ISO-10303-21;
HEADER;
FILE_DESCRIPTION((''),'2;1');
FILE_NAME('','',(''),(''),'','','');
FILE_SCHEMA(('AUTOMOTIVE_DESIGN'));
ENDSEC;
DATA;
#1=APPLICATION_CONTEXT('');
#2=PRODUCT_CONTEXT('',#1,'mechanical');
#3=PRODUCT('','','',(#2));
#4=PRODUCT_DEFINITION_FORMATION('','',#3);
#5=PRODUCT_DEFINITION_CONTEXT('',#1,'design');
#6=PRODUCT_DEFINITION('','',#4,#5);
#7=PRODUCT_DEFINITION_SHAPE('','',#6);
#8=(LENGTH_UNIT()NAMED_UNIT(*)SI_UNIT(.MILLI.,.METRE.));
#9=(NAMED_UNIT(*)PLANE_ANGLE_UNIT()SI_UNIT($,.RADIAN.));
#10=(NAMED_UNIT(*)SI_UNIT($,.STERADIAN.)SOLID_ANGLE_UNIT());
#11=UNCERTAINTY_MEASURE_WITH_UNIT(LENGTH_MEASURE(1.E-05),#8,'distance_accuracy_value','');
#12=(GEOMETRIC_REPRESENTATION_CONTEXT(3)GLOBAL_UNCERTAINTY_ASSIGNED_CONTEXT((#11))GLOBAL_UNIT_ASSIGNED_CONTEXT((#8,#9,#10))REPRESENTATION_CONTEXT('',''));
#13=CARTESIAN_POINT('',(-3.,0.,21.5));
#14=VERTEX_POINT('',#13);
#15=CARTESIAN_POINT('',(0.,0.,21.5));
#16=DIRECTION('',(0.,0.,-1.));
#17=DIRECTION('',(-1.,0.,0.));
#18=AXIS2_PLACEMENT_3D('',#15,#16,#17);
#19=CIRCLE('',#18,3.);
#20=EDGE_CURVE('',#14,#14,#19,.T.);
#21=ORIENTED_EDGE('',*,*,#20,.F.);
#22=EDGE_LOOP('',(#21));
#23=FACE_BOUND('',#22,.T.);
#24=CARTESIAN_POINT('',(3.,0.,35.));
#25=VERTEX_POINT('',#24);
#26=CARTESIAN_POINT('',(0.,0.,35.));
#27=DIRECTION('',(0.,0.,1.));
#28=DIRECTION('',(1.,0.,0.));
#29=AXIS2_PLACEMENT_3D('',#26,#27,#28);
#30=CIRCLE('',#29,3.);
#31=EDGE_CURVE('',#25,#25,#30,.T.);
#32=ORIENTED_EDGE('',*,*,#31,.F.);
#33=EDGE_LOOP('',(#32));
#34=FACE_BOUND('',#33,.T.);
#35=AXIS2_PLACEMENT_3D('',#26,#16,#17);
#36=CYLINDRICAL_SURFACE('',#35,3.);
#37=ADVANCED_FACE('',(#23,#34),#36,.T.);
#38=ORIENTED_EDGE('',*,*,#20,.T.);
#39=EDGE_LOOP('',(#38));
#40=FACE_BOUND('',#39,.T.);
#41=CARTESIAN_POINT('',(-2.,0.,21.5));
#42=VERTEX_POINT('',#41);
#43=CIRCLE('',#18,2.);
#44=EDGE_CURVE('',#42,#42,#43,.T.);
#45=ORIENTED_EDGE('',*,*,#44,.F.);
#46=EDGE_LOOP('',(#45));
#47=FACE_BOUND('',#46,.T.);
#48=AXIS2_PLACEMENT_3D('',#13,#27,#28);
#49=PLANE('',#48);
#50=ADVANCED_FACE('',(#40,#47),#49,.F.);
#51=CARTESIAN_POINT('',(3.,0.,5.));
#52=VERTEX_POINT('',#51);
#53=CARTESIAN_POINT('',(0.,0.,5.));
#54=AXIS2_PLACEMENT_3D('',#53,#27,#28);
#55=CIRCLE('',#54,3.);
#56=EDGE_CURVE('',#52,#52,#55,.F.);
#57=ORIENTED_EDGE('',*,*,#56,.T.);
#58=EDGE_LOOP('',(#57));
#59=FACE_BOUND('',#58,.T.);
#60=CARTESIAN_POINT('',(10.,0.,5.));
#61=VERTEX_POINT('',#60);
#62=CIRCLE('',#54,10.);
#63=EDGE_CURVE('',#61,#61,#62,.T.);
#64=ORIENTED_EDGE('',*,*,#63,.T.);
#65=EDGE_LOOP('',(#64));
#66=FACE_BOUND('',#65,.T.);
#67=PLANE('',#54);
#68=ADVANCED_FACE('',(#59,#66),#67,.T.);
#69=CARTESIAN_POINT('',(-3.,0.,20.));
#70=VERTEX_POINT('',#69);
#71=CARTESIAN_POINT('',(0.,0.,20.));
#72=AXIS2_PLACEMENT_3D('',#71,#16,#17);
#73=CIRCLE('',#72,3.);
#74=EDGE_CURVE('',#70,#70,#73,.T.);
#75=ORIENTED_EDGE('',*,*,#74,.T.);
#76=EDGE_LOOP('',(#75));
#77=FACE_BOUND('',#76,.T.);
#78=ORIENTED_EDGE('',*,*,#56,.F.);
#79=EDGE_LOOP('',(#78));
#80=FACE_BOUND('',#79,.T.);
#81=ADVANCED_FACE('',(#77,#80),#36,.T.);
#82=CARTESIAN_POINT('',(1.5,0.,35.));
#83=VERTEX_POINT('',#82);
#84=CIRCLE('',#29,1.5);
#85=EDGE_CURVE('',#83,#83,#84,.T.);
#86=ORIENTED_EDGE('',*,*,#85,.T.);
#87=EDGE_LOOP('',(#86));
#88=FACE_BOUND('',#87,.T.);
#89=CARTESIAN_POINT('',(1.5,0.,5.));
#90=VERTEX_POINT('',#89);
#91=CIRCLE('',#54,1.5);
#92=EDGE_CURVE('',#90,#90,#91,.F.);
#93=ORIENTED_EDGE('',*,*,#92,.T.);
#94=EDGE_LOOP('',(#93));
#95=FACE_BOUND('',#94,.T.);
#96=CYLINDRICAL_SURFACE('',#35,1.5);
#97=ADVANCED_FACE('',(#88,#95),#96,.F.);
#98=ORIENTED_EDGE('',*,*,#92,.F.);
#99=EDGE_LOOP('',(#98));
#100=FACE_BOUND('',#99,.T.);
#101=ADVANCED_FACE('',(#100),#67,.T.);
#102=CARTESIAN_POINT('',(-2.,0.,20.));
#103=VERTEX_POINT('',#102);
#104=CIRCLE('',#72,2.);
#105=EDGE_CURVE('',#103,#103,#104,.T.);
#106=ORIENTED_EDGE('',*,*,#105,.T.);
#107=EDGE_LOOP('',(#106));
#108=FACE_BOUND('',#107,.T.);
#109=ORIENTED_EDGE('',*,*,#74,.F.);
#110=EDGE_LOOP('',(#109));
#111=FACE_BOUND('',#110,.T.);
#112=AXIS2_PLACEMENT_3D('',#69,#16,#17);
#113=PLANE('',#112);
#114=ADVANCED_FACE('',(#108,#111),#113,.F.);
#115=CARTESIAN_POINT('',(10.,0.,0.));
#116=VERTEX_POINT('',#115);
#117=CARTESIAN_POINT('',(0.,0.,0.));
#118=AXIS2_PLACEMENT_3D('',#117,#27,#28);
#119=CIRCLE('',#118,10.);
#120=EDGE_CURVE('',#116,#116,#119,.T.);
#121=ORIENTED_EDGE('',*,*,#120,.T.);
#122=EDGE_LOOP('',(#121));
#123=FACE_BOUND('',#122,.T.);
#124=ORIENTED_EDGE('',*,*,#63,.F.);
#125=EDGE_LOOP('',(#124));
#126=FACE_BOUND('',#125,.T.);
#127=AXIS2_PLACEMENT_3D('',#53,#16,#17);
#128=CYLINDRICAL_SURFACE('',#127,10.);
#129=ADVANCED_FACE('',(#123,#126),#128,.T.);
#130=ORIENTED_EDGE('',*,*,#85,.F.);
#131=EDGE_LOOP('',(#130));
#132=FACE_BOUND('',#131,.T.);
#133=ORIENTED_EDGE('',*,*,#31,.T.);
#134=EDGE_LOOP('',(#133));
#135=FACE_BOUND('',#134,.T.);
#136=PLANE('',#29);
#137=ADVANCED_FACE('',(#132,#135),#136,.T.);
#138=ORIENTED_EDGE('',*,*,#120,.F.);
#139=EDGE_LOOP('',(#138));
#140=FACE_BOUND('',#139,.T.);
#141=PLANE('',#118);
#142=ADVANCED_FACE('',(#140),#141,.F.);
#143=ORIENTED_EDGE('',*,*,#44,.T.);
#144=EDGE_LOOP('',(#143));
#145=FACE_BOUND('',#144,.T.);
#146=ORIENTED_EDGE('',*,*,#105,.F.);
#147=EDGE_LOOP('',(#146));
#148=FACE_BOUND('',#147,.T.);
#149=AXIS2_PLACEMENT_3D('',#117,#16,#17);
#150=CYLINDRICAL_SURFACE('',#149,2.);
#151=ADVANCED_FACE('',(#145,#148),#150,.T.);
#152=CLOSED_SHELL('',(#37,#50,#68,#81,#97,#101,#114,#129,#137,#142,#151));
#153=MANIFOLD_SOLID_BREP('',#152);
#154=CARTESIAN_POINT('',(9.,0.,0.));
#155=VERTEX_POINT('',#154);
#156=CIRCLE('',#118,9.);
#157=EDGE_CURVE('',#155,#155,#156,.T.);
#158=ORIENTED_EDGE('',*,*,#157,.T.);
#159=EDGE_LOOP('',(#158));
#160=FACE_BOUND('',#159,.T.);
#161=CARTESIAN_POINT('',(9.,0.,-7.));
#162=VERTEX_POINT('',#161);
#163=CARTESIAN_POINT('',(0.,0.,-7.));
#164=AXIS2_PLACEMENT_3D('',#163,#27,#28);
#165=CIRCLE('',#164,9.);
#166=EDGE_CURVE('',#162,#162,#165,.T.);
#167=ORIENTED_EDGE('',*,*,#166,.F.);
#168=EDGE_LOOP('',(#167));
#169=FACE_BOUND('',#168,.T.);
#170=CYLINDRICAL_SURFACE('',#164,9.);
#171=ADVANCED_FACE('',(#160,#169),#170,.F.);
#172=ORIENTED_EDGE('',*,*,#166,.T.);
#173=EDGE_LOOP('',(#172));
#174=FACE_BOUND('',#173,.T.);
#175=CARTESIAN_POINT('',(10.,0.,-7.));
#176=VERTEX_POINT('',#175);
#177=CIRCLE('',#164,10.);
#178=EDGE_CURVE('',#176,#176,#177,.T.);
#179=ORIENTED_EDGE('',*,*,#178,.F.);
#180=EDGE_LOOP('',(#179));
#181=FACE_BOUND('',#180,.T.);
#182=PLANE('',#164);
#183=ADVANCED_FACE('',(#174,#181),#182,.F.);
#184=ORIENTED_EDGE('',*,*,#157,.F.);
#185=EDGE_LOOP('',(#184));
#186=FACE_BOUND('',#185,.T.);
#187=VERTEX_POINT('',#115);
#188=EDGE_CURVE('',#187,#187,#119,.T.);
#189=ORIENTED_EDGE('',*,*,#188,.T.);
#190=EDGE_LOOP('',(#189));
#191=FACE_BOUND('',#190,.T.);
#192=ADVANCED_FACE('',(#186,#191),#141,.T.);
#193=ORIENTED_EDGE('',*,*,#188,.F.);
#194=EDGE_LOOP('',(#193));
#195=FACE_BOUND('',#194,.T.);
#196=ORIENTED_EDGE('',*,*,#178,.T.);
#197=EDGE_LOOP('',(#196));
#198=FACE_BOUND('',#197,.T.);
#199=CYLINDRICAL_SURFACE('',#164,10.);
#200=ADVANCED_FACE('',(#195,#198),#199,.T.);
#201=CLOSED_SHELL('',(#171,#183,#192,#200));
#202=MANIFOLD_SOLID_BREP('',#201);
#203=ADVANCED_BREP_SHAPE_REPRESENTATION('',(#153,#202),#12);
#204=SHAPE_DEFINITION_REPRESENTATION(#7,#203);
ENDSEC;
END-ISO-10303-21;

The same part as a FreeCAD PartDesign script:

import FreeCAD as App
import Part
import Sketcher

V = App.Vector
Q = App.Units.Quantity


def add_polygon(sketch, points):
    """Adds a closed chain of lines whose ends are joined by coincident constraints."""
    first, n = sketch.GeometryCount, len(points)
    for a, b in zip(points, points[1:] + points[:1]):
        sketch.addGeometry(Part.LineSegment(App.Vector(*a, 0), App.Vector(*b, 0)), False)
    for i in range(n):
        sketch.addConstraint(Sketcher.Constraint("Coincident", first + i, 2, first + (i + 1) % n, 1))

doc = App.newDocument("Part")
body = doc.addObject("PartDesign::Body", "Body")

# Sketch on XY plane
sketch1 = body.newObject("Sketcher::SketchObject", "Sketch")
sketch1.AttachmentSupport = (doc.getObject("XY_Plane"), [""])
sketch1.MapMode = "FlatFace"
sketch1.addGeometry(Part.Circle(V(0, 0, 0), V(0, 0, 1), 10), False)
sketch1.addConstraint([
    Sketcher.Constraint("Coincident", 0, 3, -1, 1),
    Sketcher.Constraint("Diameter", 0, Q("20 mm")),
])
pad1 = body.newObject("PartDesign::Pad", "Pad")
pad1.Profile = sketch1
pad1.Length = 5

# Sketch on XY plane
sketch2 = body.newObject("Sketcher::SketchObject", "Sketch001")
sketch2.AttachmentSupport = (doc.getObject("XY_Plane"), [""])
sketch2.MapMode = "FlatFace"
sketch2.addGeometry([
    Part.Circle(V(0, 0, 0), V(0, 0, 1), 3),
    Part.Circle(V(0, 0, 0), V(0, 0, 1), 1.5),
], False)
sketch2.addConstraint([
    Sketcher.Constraint("Coincident", 0, 3, -1, 1),
    Sketcher.Constraint("Coincident", 1, 3, -1, 1),
    Sketcher.Constraint("Diameter", 0, Q("6 mm")),
    Sketcher.Constraint("Diameter", 1, Q("3 mm")),
])
pad2 = body.newObject("PartDesign::Pad", "Pad001")
pad2.Profile = sketch2
pad2.Length = 35

# Sketch on XZ plane
sketch3 = body.newObject("Sketcher::SketchObject", "Sketch002")
sketch3.AttachmentSupport = (doc.getObject("XZ_Plane"), [""])
sketch3.MapMode = "FlatFace"
add_polygon(sketch3, [(-3, 20), (-3, 21.5), (-2, 21.5), (-2, 20)])  # lines 0-3
sketch3.addConstraint([
    Sketcher.Constraint("Vertical", 0),
    Sketcher.Constraint("Horizontal", 1),
    Sketcher.Constraint("Vertical", 2),
    Sketcher.Constraint("Horizontal", 3),
    Sketcher.Constraint("DistanceX", 1, 1, 1, 2, Q("1 mm")),
    Sketcher.Constraint("DistanceY", 0, 1, 0, 2, Q("1.5 mm")),
    Sketcher.Constraint("DistanceX", 0, 2, -1, 1, Q("3 mm")),
    Sketcher.Constraint("DistanceY", -1, 1, 2, 2, Q("20 mm")),
])
groove = body.newObject("PartDesign::Groove", "Groove")
groove.Profile = sketch3
groove.ReferenceAxis = (sketch3, ["V_Axis"])
groove.Angle = 360
body2 = doc.addObject("PartDesign::Body", "Body001")

# Sketch on XY plane
sketch4 = body2.newObject("Sketcher::SketchObject", "Sketch003")
sketch4.AttachmentSupport = (doc.getObject("XY_Plane001"), [""])
sketch4.MapMode = "FlatFace"
sketch4.addGeometry([
    Part.Circle(V(0, 0, 0), V(0, 0, 1), 10),
    Part.Circle(V(0, 0, 0), V(0, 0, 1), 9),
], False)
sketch4.addConstraint([
    Sketcher.Constraint("Coincident", 0, 3, -1, 1),
    Sketcher.Constraint("Coincident", 1, 3, -1, 1),
    Sketcher.Constraint("Diameter", 0, Q("20 mm")),
    Sketcher.Constraint("Diameter", 1, Q("18 mm")),
])
pad3 = body2.newObject("PartDesign::Pad", "Pad002")
pad3.Profile = sketch4
pad3.Length = 7
pad3.Reversed = True

doc.recompute()
